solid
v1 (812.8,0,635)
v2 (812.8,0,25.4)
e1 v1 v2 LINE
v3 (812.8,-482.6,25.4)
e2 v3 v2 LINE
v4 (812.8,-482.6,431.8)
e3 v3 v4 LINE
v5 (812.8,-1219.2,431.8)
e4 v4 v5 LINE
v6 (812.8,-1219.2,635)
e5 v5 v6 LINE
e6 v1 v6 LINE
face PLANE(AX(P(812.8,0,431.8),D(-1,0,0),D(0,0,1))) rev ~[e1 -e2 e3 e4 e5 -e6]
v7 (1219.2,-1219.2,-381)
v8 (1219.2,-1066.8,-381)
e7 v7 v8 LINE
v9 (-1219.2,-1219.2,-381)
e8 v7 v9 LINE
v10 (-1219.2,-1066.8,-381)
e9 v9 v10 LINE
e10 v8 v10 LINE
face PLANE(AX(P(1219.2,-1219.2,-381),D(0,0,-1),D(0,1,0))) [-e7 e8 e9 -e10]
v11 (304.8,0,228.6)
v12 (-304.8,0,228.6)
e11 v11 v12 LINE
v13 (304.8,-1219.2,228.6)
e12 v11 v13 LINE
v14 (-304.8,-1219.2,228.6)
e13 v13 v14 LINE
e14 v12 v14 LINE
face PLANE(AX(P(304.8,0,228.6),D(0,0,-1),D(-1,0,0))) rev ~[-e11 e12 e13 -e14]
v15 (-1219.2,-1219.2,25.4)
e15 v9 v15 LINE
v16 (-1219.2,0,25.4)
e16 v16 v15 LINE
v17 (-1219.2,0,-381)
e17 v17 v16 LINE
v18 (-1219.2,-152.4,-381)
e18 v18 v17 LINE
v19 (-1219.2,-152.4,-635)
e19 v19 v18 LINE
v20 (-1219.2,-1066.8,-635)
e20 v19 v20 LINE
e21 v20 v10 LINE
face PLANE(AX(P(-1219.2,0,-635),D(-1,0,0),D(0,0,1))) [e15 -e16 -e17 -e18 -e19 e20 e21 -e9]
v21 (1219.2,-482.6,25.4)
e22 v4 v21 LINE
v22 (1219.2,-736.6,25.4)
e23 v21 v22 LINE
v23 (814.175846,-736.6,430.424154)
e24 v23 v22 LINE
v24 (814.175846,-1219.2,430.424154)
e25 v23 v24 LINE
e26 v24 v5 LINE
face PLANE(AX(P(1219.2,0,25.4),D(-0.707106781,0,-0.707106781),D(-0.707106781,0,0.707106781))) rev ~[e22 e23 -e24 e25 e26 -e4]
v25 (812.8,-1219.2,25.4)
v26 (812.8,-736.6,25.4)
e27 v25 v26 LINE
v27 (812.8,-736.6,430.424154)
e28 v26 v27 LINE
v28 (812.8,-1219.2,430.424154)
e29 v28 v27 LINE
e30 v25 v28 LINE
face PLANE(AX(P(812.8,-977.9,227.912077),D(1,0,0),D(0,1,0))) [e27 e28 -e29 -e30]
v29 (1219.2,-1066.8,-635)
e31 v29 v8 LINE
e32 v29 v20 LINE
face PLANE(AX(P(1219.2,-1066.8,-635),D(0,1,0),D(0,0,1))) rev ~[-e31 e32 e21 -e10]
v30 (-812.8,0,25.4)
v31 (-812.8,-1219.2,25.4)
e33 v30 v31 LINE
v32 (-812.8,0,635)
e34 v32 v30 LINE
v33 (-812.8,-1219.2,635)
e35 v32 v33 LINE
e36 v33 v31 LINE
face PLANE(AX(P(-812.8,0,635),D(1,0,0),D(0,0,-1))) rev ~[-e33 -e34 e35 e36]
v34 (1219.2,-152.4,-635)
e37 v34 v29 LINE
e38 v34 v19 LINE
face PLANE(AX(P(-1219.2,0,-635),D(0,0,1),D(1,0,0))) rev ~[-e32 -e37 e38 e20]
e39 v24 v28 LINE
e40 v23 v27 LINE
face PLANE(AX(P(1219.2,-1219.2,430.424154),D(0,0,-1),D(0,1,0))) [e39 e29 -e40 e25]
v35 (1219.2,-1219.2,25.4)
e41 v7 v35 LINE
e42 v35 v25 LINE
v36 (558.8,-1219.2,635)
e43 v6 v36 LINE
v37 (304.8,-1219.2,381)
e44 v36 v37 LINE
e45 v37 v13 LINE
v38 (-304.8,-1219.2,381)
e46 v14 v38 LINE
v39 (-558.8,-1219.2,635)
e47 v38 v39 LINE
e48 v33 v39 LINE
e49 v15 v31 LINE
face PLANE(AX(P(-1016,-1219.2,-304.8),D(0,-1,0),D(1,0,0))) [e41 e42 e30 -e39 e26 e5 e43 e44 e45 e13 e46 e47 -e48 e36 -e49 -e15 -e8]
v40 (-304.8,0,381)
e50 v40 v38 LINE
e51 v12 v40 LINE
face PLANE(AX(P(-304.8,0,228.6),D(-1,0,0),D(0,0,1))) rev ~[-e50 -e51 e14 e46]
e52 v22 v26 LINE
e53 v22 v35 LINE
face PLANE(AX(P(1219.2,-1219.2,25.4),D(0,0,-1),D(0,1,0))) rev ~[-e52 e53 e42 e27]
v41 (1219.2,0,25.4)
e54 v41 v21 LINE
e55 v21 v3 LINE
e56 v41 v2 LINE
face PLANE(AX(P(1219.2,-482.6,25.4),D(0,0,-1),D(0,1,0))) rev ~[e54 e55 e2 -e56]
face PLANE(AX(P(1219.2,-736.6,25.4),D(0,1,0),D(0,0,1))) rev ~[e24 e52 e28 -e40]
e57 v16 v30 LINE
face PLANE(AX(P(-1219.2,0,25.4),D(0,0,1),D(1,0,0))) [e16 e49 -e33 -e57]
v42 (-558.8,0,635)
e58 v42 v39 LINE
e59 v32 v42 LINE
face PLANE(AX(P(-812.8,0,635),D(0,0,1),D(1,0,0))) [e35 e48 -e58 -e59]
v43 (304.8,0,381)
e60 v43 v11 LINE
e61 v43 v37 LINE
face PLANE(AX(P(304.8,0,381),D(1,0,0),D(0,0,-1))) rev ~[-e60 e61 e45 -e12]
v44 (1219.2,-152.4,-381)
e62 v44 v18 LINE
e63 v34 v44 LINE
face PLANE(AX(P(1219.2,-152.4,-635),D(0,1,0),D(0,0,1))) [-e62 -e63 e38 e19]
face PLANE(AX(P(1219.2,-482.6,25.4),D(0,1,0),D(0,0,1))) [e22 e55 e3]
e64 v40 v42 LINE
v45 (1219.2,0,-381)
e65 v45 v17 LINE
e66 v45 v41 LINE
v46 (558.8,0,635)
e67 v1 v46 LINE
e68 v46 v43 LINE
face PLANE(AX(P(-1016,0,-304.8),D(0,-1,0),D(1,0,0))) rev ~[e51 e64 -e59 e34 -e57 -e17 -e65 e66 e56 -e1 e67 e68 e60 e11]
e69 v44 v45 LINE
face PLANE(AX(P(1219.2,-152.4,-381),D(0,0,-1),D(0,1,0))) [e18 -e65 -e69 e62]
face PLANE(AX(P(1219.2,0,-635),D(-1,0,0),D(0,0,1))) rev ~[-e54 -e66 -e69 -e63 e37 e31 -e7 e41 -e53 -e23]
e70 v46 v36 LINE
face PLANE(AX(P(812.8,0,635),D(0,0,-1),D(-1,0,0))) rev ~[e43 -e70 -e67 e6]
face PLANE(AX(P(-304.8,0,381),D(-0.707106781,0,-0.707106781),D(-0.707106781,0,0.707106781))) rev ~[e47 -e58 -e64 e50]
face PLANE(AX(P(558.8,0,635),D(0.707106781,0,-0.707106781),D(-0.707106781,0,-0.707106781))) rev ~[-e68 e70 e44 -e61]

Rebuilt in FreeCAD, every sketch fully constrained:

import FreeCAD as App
import Part
import Sketcher
from FreeCAD import Vector
Q = App.Units.Quantity

doc = App.newDocument("Part")
body = doc.addObject("PartDesign::Body", "Body")

sketch1 = body.newObject("Sketcher::SketchObject", "Sketch")
sketch1.AttachmentSupport = (doc.getObject("XZ_Plane"), [""])
sketch1.MapMode = "FlatFace"
sketch1.addGeometry(Part.LineSegment(Vector(-1219, 25, 0), Vector(-1219, -635, 0)), False)
sketch1.addGeometry(Part.LineSegment(Vector(-1219, -635, 0), Vector(1219, -635, 0)), False)
sketch1.addGeometry(Part.LineSegment(Vector(1219, -635, 0), Vector(1219, 25, 0)), False)
sketch1.addGeometry(Part.LineSegment(Vector(1219, 25, 0), Vector(813, 432, 0)), False)
sketch1.addGeometry(Part.LineSegment(Vector(813, 432, 0), Vector(813, 635, 0)), False)
sketch1.addGeometry(Part.LineSegment(Vector(813, 635, 0), Vector(559, 635, 0)), False)
sketch1.addGeometry(Part.LineSegment(Vector(559, 635, 0), Vector(305, 381, 0)), False)
sketch1.addGeometry(Part.LineSegment(Vector(305, 381, 0), Vector(305, 229, 0)), False)
sketch1.addGeometry(Part.LineSegment(Vector(305, 229, 0), Vector(-305, 229, 0)), False)
sketch1.addGeometry(Part.LineSegment(Vector(-305, 229, 0), Vector(-305, 381, 0)), False)
sketch1.addGeometry(Part.LineSegment(Vector(-305, 381, 0), Vector(-559, 635, 0)), False)
sketch1.addGeometry(Part.LineSegment(Vector(-559, 635, 0), Vector(-813, 635, 0)), False)
sketch1.addGeometry(Part.LineSegment(Vector(-813, 635, 0), Vector(-813, 25, 0)), False)
sketch1.addGeometry(Part.LineSegment(Vector(-813, 25, 0), Vector(-1219, 25, 0)), False)
sketch1.addConstraint(Sketcher.Constraint("Coincident", 0, 2, 1, 1))
sketch1.addConstraint(Sketcher.Constraint("Coincident", 1, 2, 2, 1))
sketch1.addConstraint(Sketcher.Constraint("Coincident", 2, 2, 3, 1))
sketch1.addConstraint(Sketcher.Constraint("Coincident", 3, 2, 4, 1))
sketch1.addConstraint(Sketcher.Constraint("Coincident", 4, 2, 5, 1))
sketch1.addConstraint(Sketcher.Constraint("Coincident", 5, 2, 6, 1))
sketch1.addConstraint(Sketcher.Constraint("Coincident", 6, 2, 7, 1))
sketch1.addConstraint(Sketcher.Constraint("Coincident", 7, 2, 8, 1))
sketch1.addConstraint(Sketcher.Constraint("Coincident", 8, 2, 9, 1))
sketch1.addConstraint(Sketcher.Constraint("Coincident", 9, 2, 10, 1))
sketch1.addConstraint(Sketcher.Constraint("Coincident", 10, 2, 11, 1))
sketch1.addConstraint(Sketcher.Constraint("Coincident", 11, 2, 12, 1))
sketch1.addConstraint(Sketcher.Constraint("Coincident", 12, 2, 13, 1))
sketch1.addConstraint(Sketcher.Constraint("Coincident", 13, 2, 0, 1))
sketch1.addConstraint(Sketcher.Constraint("Vertical", 0))
sketch1.addConstraint(Sketcher.Constraint("Horizontal", 1))
sketch1.addConstraint(Sketcher.Constraint("Vertical", 2))
sketch1.addConstraint(Sketcher.Constraint("Vertical", 4))
sketch1.addConstraint(Sketcher.Constraint("Horizontal", 5))
sketch1.addConstraint(Sketcher.Constraint("Vertical", 7))
sketch1.addConstraint(Sketcher.Constraint("Horizontal", 8))
sketch1.addConstraint(Sketcher.Constraint("Vertical", 9))
sketch1.addConstraint(Sketcher.Constraint("Horizontal", 11))
sketch1.addConstraint(Sketcher.Constraint("Vertical", 12))
sketch1.addConstraint(Sketcher.Constraint("Horizontal", 13))
sketch1.addConstraint(Sketcher.Constraint("Symmetric", 6, 2, 9, 2, -2))
sketch1.addConstraint(Sketcher.Constraint("Symmetric", 5, 2, 10, 2, -2))
sketch1.addConstraint(Sketcher.Constraint("Symmetric", 2, 2, 13, 2, -2))
sketch1.addConstraint(Sketcher.Constraint("Perpendicular", 3, 6))
sketch1.addConstraint(Sketcher.Constraint("Perpendicular", 6, 10))
sketch1.addConstraint(Sketcher.Constraint("Equal", 5, 11))
sketch1.addConstraint(Sketcher.Constraint("Equal", 8, 12))
sketch1.addConstraint(Sketcher.Constraint("DistanceX", 1, 1, 1, 2, Q("96 in")))
sketch1.addConstraint(Sketcher.Constraint("DistanceX", 5, 2, 5, 1, Q("10 in")))
sketch1.addConstraint(Sketcher.Constraint("DistanceX", 8, 2, 8, 1, Q("24 in")))
sketch1.addConstraint(Sketcher.Constraint("DistanceX", 13, 2, 13, 1, Q("16 in")))
sketch1.addConstraint(Sketcher.Constraint("DistanceY", 0, 2, 0, 1, Q("26 in")))
sketch1.addConstraint(Sketcher.Constraint("DistanceY", 7, 2, 7, 1, Q("6 in")))
sketch1.addConstraint(Sketcher.Constraint("DistanceY", 0, 2, -1, 1, Q("25 in")))
pad1 = body.newObject("PartDesign::Pad", "Pad")
pad1.Profile = sketch1
pad1.Length = Q("48 in")

sketch2 = body.newObject("Sketcher::SketchObject", "Sketch001")
sketch2.AttachmentSupport = (doc.getObject("YZ_Plane"), [""])
sketch2.MapMode = "FlatFace"
sketch2.AttachmentOffset = App.Placement(Vector(0, 0, 48 * 25.4), App.Rotation())
sketch2.addGeometry(Part.LineSegment(Vector(-1219, -381, 0), Vector(-1219, -635, 0)), False)
sketch2.addGeometry(Part.LineSegment(Vector(-1219, -635, 0), Vector(-1067, -635, 0)), False)
sketch2.addGeometry(Part.LineSegment(Vector(-1067, -635, 0), Vector(-1067, -381, 0)), False)
sketch2.addGeometry(Part.LineSegment(Vector(-1067, -381, 0), Vector(-1219, -381, 0)), False)
sketch2.addGeometry(Part.LineSegment(Vector(-152, -381, 0), Vector(-152, -635, 0)), False)
sketch2.addGeometry(Part.LineSegment(Vector(-152, -635, 0), Vector(0, -635, 0)), False)
sketch2.addGeometry(Part.LineSegment(Vector(0, -635, 0), Vector(0, -381, 0)), False)
sketch2.addGeometry(Part.LineSegment(Vector(0, -381, 0), Vector(-152, -381, 0)), False)
sketch2.addConstraint(Sketcher.Constraint("Coincident", 0, 2, 1, 1))
sketch2.addConstraint(Sketcher.Constraint("Coincident", 1, 2, 2, 1))
sketch2.addConstraint(Sketcher.Constraint("Coincident", 2, 2, 3, 1))
sketch2.addConstraint(Sketcher.Constraint("Coincident", 3, 2, 0, 1))
sketch2.addConstraint(Sketcher.Constraint("Coincident", 4, 2, 5, 1))
sketch2.addConstraint(Sketcher.Constraint("Coincident", 5, 2, 6, 1))
sketch2.addConstraint(Sketcher.Constraint("Coincident", 6, 2, 7, 1))
sketch2.addConstraint(Sketcher.Constraint("Coincident", 7, 2, 4, 1))
sketch2.addConstraint(Sketcher.Constraint("Vertical", 0))
sketch2.addConstraint(Sketcher.Constraint("Horizontal", 1))
sketch2.addConstraint(Sketcher.Constraint("Vertical", 2))
sketch2.addConstraint(Sketcher.Constraint("Horizontal", 3))
sketch2.addConstraint(Sketcher.Constraint("Vertical", 4))
sketch2.addConstraint(Sketcher.Constraint("Horizontal", 5))
sketch2.addConstraint(Sketcher.Constraint("Vertical", 6))
sketch2.addConstraint(Sketcher.Constraint("Horizontal", 7))
sketch2.addConstraint(Sketcher.Constraint("PointOnObject", 5, 2, -2))
sketch2.addConstraint(Sketcher.Constraint("Horizontal", 1, 2, 4, 2))
sketch2.addConstraint(Sketcher.Constraint("Horizontal", 3, 2, 6, 2))
sketch2.addConstraint(Sketcher.Constraint("Equal", 3, 5))
sketch2.addConstraint(Sketcher.Constraint("DistanceX", 1, 1, 1, 2, Q("6 in")))
sketch2.addConstraint(Sketcher.Constraint("DistanceY", 0, 2, 0, 1, Q("10 in")))
sketch2.addConstraint(Sketcher.Constraint("DistanceX", 0, 2, -1, 1, Q("48 in")))
sketch2.addConstraint(Sketcher.Constraint("DistanceY", 0, 2, -1, 1, Q("25 in")))
pocket1 = body.newObject("PartDesign::Pocket", "Pocket")
pocket1.Profile = sketch2
pocket1.Length = Q("96 in")

sketch3 = body.newObject("Sketcher::SketchObject", "Sketch002")
sketch3.AttachmentSupport = (doc.getObject("YZ_Plane"), [""])
sketch3.MapMode = "FlatFace"
sketch3.AttachmentOffset = App.Placement(Vector(0, 0, 48 * 25.4), App.Rotation())
sketch3.addGeometry(Part.LineSegment(Vector(-483, 432, 0), Vector(-483, 25, 0)), False)
sketch3.addGeometry(Part.LineSegment(Vector(-483, 25, 0), Vector(0, 25, 0)), False)
sketch3.addGeometry(Part.LineSegment(Vector(0, 25, 0), Vector(0, 432, 0)), False)
sketch3.addGeometry(Part.LineSegment(Vector(0, 432, 0), Vector(-483, 432, 0)), False)
sketch3.addGeometry(Part.LineSegment(Vector(-1219, 430, 0), Vector(-1219, 25, 0)), False)
sketch3.addGeometry(Part.LineSegment(Vector(-1219, 25, 0), Vector(-737, 25, 0)), False)
sketch3.addGeometry(Part.LineSegment(Vector(-737, 25, 0), Vector(-737, 430, 0)), False)
sketch3.addGeometry(Part.LineSegment(Vector(-737, 430, 0), Vector(-1219, 430, 0)), False)
sketch3.addConstraint(Sketcher.Constraint("Coincident", 0, 2, 1, 1))
sketch3.addConstraint(Sketcher.Constraint("Coincident", 1, 2, 2, 1))
sketch3.addConstraint(Sketcher.Constraint("Coincident", 2, 2, 3, 1))
sketch3.addConstraint(Sketcher.Constraint("Coincident", 3, 2, 0, 1))
sketch3.addConstraint(Sketcher.Constraint("Coincident", 4, 2, 5, 1))
sketch3.addConstraint(Sketcher.Constraint("Coincident", 5, 2, 6, 1))
sketch3.addConstraint(Sketcher.Constraint("Coincident", 6, 2, 7, 1))
sketch3.addConstraint(Sketcher.Constraint("Coincident", 7, 2, 4, 1))
sketch3.addConstraint(Sketcher.Constraint("Vertical", 0))
sketch3.addConstraint(Sketcher.Constraint("Horizontal", 1))
sketch3.addConstraint(Sketcher.Constraint("Vertical", 2))
sketch3.addConstraint(Sketcher.Constraint("Horizontal", 3))
sketch3.addConstraint(Sketcher.Constraint("Vertical", 4))
sketch3.addConstraint(Sketcher.Constraint("Horizontal", 5))
sketch3.addConstraint(Sketcher.Constraint("Vertical", 6))
sketch3.addConstraint(Sketcher.Constraint("Horizontal", 7))
sketch3.addConstraint(Sketcher.Constraint("PointOnObject", 1, 2, -2))
sketch3.addConstraint(Sketcher.Constraint("Horizontal", 1, 2, 4, 2))
sketch3.addConstraint(Sketcher.Constraint("Equal", 3, 5))
sketch3.addConstraint(Sketcher.Constraint("DistanceX", 1, 1, 1, 2, Q("19 in")))
sketch3.addConstraint(Sketcher.Constraint("DistanceY", -1, 1, 0, 2, Q("1 in")))
sketch3.addConstraint(Sketcher.Constraint("DistanceX", 4, 2, -1, 1, Q("48 in")))
sketch3.addConstraint(Sketcher.Constraint("DistanceY", 0, 2, 0, 1, Q("406.505836 mm")))
sketch3.addConstraint(Sketcher.Constraint("DistanceY", 4, 2, 4, 1, Q("405.024154 mm")))
pocket2 = body.newObject("PartDesign::Pocket", "Pocket001")
pocket2.Profile = sketch3
pocket2.Length = Q("16 in")

doc.recompute()
